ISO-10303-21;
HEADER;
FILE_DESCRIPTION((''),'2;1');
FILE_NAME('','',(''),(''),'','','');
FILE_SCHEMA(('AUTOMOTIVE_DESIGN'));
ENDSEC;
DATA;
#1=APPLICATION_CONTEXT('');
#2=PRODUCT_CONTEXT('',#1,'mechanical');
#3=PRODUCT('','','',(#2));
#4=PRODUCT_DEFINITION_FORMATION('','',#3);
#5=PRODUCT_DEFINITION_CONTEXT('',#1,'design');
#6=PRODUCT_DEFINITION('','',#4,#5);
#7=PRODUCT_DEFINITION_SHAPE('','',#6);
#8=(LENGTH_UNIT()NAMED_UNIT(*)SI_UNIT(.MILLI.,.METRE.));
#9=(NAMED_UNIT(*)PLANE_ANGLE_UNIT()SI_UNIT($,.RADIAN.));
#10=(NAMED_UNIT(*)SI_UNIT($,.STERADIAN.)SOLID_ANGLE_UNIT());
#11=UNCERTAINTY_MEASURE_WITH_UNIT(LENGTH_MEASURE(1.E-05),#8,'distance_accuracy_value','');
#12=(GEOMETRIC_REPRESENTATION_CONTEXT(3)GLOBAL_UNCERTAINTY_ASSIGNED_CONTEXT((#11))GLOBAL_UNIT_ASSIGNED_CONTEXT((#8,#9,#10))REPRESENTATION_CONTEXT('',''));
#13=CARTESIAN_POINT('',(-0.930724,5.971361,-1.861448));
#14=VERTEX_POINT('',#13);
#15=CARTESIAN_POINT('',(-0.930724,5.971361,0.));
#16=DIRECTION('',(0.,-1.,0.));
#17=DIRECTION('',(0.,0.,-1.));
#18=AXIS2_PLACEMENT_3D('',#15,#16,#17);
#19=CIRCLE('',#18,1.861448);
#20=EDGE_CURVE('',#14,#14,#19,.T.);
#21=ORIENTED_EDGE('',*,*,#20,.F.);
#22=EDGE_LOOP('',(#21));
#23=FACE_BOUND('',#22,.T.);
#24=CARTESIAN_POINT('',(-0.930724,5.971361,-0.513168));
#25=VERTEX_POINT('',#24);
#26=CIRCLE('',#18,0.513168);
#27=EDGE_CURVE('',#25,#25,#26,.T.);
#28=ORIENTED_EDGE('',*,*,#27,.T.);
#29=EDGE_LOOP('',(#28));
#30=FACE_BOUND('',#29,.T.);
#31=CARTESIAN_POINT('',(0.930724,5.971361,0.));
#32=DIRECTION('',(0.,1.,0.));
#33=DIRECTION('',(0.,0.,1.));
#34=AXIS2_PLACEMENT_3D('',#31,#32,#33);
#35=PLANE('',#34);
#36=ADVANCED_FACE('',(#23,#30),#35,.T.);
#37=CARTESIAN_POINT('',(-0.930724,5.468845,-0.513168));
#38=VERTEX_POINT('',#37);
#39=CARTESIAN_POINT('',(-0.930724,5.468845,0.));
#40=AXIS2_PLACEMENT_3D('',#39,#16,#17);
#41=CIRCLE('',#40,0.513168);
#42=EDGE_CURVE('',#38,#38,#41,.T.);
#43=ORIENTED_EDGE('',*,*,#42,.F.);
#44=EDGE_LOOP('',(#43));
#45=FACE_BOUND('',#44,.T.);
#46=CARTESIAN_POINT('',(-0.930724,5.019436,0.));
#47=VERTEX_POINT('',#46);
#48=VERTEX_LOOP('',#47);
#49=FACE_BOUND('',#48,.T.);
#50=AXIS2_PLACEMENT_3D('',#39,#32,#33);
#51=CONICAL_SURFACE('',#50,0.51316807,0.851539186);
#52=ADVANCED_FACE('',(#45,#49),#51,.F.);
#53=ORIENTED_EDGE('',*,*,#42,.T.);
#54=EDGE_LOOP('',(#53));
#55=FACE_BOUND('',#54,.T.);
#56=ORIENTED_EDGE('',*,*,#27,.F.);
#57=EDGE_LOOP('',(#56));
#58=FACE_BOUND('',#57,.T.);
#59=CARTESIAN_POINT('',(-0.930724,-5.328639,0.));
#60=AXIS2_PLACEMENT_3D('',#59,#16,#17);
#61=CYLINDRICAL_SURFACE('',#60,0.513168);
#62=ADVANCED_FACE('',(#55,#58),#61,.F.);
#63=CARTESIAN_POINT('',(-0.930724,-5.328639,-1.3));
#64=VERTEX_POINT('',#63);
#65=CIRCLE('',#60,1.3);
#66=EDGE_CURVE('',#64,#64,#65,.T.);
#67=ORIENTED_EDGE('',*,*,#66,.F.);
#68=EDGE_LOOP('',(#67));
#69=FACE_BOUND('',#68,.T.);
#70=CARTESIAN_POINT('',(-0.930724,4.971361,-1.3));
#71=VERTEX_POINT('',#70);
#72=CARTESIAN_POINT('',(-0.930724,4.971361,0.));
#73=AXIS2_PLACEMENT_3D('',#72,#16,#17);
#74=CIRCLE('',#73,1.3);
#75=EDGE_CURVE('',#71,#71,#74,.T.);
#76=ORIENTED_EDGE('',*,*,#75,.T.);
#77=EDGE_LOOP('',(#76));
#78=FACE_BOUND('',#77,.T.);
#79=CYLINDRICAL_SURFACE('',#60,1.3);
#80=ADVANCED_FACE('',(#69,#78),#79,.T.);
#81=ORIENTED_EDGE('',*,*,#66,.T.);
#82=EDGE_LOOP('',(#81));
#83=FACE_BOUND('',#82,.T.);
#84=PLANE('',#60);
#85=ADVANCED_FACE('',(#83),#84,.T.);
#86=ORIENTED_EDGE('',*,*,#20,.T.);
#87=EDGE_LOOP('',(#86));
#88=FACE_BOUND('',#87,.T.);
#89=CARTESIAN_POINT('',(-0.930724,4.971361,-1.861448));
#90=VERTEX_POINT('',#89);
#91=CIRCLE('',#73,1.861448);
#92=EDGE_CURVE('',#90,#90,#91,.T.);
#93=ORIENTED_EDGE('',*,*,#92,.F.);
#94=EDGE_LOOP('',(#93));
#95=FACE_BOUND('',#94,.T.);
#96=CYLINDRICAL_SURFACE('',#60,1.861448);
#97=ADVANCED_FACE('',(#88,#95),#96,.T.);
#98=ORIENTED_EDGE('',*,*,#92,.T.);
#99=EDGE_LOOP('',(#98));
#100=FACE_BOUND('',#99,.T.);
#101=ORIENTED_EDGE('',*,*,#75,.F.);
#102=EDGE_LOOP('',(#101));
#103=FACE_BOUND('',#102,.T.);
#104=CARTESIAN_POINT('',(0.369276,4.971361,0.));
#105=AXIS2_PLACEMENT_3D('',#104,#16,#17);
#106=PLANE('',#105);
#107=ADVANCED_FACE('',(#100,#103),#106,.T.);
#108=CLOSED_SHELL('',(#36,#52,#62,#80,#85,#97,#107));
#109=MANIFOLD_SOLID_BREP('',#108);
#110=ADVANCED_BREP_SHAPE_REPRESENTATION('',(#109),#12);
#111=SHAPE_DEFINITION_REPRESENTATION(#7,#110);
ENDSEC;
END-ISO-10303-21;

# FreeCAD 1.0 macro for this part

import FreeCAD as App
import Part
import Sketcher
Q = App.Units.Quantity


def add_polygon(sketch, points):
    """Adds a closed chain of lines whose ends are joined by coincident constraints."""
    first, n = sketch.GeometryCount, len(points)
    for a, b in zip(points, points[1:] + points[:1]):
        sketch.addGeometry(Part.LineSegment(App.Vector(*a, 0), App.Vector(*b, 0)), False)
    for i in range(n):
        sketch.addConstraint(Sketcher.Constraint("Coincident", first + i, 2, first + (i + 1) % n, 1))

doc = App.newDocument("Part")
body = doc.addObject("PartDesign::Body", "Body")

sketch1 = body.newObject("Sketcher::SketchObject", "Sketch")
sketch1.AttachmentSupport = (doc.getObject("XY_Plane"), [""])
sketch1.MapMode = "FlatFace"
add_polygon(sketch1, [(-0.9, -5.3), (0.4, -5.3), (0.4, 5), (0.9, 5), (0.9, 6), (-0.4, 6), (-0.4, 5.5), (-0.9, 5)])
sketch1.addGeometry(Part.LineSegment(App.Vector(-0.9, -5.3, 0), App.Vector(-0.9, 6, 0)), True)
sketch1.addConstraint(Sketcher.Constraint("Horizontal", 0))
sketch1.addConstraint(Sketcher.Constraint("Vertical", 1))
sketch1.addConstraint(Sketcher.Constraint("Horizontal", 2))
sketch1.addConstraint(Sketcher.Constraint("Vertical", 3))
sketch1.addConstraint(Sketcher.Constraint("Horizontal", 4))
sketch1.addConstraint(Sketcher.Constraint("Vertical", 5))
sketch1.addConstraint(Sketcher.Constraint("Vertical", 7))
sketch1.addConstraint(Sketcher.Constraint("Vertical", 8))
sketch1.addConstraint(Sketcher.Constraint("Coincident", 8, 1, 7, 2))
sketch1.addConstraint(Sketcher.Constraint("Symmetric", 3, 2, 8, 2, -2))
sketch1.addConstraint(Sketcher.Constraint("DistanceY", 3, 1, 3, 2, Q("1 mm")))
sketch1.addConstraint(Sketcher.Constraint("DistanceX", 0, 1, 0, 2, Q("1.3 mm")))
sketch1.addConstraint(Sketcher.Constraint("DistanceY", 1, 1, 1, 2, Q("10.3 mm")))
sketch1.addConstraint(Sketcher.Constraint("DistanceX", 4, 2, 4, 1, Q("1.34828 mm")))
sketch1.addConstraint(Sketcher.Constraint("DistanceX", 2, 1, 2, 2, Q("0.561448 mm")))
sketch1.addConstraint(Sketcher.Constraint("DistanceY", 5, 2, 5, 1, Q("0.502515 mm")))
sketch1.addConstraint(Sketcher.Constraint("DistanceY", 7, 2, 7, 1, Q("10.348076 mm")))
sketch1.addConstraint(Sketcher.Constraint("DistanceY", 0, 2, -1, 1, Q("5.328639 mm")))
revolution = body.newObject("PartDesign::Revolution", "Revolution")
revolution.Profile = sketch1
revolution.ReferenceAxis = (sketch1, ["Axis0"])
revolution.Angle = 360

doc.recompute()
